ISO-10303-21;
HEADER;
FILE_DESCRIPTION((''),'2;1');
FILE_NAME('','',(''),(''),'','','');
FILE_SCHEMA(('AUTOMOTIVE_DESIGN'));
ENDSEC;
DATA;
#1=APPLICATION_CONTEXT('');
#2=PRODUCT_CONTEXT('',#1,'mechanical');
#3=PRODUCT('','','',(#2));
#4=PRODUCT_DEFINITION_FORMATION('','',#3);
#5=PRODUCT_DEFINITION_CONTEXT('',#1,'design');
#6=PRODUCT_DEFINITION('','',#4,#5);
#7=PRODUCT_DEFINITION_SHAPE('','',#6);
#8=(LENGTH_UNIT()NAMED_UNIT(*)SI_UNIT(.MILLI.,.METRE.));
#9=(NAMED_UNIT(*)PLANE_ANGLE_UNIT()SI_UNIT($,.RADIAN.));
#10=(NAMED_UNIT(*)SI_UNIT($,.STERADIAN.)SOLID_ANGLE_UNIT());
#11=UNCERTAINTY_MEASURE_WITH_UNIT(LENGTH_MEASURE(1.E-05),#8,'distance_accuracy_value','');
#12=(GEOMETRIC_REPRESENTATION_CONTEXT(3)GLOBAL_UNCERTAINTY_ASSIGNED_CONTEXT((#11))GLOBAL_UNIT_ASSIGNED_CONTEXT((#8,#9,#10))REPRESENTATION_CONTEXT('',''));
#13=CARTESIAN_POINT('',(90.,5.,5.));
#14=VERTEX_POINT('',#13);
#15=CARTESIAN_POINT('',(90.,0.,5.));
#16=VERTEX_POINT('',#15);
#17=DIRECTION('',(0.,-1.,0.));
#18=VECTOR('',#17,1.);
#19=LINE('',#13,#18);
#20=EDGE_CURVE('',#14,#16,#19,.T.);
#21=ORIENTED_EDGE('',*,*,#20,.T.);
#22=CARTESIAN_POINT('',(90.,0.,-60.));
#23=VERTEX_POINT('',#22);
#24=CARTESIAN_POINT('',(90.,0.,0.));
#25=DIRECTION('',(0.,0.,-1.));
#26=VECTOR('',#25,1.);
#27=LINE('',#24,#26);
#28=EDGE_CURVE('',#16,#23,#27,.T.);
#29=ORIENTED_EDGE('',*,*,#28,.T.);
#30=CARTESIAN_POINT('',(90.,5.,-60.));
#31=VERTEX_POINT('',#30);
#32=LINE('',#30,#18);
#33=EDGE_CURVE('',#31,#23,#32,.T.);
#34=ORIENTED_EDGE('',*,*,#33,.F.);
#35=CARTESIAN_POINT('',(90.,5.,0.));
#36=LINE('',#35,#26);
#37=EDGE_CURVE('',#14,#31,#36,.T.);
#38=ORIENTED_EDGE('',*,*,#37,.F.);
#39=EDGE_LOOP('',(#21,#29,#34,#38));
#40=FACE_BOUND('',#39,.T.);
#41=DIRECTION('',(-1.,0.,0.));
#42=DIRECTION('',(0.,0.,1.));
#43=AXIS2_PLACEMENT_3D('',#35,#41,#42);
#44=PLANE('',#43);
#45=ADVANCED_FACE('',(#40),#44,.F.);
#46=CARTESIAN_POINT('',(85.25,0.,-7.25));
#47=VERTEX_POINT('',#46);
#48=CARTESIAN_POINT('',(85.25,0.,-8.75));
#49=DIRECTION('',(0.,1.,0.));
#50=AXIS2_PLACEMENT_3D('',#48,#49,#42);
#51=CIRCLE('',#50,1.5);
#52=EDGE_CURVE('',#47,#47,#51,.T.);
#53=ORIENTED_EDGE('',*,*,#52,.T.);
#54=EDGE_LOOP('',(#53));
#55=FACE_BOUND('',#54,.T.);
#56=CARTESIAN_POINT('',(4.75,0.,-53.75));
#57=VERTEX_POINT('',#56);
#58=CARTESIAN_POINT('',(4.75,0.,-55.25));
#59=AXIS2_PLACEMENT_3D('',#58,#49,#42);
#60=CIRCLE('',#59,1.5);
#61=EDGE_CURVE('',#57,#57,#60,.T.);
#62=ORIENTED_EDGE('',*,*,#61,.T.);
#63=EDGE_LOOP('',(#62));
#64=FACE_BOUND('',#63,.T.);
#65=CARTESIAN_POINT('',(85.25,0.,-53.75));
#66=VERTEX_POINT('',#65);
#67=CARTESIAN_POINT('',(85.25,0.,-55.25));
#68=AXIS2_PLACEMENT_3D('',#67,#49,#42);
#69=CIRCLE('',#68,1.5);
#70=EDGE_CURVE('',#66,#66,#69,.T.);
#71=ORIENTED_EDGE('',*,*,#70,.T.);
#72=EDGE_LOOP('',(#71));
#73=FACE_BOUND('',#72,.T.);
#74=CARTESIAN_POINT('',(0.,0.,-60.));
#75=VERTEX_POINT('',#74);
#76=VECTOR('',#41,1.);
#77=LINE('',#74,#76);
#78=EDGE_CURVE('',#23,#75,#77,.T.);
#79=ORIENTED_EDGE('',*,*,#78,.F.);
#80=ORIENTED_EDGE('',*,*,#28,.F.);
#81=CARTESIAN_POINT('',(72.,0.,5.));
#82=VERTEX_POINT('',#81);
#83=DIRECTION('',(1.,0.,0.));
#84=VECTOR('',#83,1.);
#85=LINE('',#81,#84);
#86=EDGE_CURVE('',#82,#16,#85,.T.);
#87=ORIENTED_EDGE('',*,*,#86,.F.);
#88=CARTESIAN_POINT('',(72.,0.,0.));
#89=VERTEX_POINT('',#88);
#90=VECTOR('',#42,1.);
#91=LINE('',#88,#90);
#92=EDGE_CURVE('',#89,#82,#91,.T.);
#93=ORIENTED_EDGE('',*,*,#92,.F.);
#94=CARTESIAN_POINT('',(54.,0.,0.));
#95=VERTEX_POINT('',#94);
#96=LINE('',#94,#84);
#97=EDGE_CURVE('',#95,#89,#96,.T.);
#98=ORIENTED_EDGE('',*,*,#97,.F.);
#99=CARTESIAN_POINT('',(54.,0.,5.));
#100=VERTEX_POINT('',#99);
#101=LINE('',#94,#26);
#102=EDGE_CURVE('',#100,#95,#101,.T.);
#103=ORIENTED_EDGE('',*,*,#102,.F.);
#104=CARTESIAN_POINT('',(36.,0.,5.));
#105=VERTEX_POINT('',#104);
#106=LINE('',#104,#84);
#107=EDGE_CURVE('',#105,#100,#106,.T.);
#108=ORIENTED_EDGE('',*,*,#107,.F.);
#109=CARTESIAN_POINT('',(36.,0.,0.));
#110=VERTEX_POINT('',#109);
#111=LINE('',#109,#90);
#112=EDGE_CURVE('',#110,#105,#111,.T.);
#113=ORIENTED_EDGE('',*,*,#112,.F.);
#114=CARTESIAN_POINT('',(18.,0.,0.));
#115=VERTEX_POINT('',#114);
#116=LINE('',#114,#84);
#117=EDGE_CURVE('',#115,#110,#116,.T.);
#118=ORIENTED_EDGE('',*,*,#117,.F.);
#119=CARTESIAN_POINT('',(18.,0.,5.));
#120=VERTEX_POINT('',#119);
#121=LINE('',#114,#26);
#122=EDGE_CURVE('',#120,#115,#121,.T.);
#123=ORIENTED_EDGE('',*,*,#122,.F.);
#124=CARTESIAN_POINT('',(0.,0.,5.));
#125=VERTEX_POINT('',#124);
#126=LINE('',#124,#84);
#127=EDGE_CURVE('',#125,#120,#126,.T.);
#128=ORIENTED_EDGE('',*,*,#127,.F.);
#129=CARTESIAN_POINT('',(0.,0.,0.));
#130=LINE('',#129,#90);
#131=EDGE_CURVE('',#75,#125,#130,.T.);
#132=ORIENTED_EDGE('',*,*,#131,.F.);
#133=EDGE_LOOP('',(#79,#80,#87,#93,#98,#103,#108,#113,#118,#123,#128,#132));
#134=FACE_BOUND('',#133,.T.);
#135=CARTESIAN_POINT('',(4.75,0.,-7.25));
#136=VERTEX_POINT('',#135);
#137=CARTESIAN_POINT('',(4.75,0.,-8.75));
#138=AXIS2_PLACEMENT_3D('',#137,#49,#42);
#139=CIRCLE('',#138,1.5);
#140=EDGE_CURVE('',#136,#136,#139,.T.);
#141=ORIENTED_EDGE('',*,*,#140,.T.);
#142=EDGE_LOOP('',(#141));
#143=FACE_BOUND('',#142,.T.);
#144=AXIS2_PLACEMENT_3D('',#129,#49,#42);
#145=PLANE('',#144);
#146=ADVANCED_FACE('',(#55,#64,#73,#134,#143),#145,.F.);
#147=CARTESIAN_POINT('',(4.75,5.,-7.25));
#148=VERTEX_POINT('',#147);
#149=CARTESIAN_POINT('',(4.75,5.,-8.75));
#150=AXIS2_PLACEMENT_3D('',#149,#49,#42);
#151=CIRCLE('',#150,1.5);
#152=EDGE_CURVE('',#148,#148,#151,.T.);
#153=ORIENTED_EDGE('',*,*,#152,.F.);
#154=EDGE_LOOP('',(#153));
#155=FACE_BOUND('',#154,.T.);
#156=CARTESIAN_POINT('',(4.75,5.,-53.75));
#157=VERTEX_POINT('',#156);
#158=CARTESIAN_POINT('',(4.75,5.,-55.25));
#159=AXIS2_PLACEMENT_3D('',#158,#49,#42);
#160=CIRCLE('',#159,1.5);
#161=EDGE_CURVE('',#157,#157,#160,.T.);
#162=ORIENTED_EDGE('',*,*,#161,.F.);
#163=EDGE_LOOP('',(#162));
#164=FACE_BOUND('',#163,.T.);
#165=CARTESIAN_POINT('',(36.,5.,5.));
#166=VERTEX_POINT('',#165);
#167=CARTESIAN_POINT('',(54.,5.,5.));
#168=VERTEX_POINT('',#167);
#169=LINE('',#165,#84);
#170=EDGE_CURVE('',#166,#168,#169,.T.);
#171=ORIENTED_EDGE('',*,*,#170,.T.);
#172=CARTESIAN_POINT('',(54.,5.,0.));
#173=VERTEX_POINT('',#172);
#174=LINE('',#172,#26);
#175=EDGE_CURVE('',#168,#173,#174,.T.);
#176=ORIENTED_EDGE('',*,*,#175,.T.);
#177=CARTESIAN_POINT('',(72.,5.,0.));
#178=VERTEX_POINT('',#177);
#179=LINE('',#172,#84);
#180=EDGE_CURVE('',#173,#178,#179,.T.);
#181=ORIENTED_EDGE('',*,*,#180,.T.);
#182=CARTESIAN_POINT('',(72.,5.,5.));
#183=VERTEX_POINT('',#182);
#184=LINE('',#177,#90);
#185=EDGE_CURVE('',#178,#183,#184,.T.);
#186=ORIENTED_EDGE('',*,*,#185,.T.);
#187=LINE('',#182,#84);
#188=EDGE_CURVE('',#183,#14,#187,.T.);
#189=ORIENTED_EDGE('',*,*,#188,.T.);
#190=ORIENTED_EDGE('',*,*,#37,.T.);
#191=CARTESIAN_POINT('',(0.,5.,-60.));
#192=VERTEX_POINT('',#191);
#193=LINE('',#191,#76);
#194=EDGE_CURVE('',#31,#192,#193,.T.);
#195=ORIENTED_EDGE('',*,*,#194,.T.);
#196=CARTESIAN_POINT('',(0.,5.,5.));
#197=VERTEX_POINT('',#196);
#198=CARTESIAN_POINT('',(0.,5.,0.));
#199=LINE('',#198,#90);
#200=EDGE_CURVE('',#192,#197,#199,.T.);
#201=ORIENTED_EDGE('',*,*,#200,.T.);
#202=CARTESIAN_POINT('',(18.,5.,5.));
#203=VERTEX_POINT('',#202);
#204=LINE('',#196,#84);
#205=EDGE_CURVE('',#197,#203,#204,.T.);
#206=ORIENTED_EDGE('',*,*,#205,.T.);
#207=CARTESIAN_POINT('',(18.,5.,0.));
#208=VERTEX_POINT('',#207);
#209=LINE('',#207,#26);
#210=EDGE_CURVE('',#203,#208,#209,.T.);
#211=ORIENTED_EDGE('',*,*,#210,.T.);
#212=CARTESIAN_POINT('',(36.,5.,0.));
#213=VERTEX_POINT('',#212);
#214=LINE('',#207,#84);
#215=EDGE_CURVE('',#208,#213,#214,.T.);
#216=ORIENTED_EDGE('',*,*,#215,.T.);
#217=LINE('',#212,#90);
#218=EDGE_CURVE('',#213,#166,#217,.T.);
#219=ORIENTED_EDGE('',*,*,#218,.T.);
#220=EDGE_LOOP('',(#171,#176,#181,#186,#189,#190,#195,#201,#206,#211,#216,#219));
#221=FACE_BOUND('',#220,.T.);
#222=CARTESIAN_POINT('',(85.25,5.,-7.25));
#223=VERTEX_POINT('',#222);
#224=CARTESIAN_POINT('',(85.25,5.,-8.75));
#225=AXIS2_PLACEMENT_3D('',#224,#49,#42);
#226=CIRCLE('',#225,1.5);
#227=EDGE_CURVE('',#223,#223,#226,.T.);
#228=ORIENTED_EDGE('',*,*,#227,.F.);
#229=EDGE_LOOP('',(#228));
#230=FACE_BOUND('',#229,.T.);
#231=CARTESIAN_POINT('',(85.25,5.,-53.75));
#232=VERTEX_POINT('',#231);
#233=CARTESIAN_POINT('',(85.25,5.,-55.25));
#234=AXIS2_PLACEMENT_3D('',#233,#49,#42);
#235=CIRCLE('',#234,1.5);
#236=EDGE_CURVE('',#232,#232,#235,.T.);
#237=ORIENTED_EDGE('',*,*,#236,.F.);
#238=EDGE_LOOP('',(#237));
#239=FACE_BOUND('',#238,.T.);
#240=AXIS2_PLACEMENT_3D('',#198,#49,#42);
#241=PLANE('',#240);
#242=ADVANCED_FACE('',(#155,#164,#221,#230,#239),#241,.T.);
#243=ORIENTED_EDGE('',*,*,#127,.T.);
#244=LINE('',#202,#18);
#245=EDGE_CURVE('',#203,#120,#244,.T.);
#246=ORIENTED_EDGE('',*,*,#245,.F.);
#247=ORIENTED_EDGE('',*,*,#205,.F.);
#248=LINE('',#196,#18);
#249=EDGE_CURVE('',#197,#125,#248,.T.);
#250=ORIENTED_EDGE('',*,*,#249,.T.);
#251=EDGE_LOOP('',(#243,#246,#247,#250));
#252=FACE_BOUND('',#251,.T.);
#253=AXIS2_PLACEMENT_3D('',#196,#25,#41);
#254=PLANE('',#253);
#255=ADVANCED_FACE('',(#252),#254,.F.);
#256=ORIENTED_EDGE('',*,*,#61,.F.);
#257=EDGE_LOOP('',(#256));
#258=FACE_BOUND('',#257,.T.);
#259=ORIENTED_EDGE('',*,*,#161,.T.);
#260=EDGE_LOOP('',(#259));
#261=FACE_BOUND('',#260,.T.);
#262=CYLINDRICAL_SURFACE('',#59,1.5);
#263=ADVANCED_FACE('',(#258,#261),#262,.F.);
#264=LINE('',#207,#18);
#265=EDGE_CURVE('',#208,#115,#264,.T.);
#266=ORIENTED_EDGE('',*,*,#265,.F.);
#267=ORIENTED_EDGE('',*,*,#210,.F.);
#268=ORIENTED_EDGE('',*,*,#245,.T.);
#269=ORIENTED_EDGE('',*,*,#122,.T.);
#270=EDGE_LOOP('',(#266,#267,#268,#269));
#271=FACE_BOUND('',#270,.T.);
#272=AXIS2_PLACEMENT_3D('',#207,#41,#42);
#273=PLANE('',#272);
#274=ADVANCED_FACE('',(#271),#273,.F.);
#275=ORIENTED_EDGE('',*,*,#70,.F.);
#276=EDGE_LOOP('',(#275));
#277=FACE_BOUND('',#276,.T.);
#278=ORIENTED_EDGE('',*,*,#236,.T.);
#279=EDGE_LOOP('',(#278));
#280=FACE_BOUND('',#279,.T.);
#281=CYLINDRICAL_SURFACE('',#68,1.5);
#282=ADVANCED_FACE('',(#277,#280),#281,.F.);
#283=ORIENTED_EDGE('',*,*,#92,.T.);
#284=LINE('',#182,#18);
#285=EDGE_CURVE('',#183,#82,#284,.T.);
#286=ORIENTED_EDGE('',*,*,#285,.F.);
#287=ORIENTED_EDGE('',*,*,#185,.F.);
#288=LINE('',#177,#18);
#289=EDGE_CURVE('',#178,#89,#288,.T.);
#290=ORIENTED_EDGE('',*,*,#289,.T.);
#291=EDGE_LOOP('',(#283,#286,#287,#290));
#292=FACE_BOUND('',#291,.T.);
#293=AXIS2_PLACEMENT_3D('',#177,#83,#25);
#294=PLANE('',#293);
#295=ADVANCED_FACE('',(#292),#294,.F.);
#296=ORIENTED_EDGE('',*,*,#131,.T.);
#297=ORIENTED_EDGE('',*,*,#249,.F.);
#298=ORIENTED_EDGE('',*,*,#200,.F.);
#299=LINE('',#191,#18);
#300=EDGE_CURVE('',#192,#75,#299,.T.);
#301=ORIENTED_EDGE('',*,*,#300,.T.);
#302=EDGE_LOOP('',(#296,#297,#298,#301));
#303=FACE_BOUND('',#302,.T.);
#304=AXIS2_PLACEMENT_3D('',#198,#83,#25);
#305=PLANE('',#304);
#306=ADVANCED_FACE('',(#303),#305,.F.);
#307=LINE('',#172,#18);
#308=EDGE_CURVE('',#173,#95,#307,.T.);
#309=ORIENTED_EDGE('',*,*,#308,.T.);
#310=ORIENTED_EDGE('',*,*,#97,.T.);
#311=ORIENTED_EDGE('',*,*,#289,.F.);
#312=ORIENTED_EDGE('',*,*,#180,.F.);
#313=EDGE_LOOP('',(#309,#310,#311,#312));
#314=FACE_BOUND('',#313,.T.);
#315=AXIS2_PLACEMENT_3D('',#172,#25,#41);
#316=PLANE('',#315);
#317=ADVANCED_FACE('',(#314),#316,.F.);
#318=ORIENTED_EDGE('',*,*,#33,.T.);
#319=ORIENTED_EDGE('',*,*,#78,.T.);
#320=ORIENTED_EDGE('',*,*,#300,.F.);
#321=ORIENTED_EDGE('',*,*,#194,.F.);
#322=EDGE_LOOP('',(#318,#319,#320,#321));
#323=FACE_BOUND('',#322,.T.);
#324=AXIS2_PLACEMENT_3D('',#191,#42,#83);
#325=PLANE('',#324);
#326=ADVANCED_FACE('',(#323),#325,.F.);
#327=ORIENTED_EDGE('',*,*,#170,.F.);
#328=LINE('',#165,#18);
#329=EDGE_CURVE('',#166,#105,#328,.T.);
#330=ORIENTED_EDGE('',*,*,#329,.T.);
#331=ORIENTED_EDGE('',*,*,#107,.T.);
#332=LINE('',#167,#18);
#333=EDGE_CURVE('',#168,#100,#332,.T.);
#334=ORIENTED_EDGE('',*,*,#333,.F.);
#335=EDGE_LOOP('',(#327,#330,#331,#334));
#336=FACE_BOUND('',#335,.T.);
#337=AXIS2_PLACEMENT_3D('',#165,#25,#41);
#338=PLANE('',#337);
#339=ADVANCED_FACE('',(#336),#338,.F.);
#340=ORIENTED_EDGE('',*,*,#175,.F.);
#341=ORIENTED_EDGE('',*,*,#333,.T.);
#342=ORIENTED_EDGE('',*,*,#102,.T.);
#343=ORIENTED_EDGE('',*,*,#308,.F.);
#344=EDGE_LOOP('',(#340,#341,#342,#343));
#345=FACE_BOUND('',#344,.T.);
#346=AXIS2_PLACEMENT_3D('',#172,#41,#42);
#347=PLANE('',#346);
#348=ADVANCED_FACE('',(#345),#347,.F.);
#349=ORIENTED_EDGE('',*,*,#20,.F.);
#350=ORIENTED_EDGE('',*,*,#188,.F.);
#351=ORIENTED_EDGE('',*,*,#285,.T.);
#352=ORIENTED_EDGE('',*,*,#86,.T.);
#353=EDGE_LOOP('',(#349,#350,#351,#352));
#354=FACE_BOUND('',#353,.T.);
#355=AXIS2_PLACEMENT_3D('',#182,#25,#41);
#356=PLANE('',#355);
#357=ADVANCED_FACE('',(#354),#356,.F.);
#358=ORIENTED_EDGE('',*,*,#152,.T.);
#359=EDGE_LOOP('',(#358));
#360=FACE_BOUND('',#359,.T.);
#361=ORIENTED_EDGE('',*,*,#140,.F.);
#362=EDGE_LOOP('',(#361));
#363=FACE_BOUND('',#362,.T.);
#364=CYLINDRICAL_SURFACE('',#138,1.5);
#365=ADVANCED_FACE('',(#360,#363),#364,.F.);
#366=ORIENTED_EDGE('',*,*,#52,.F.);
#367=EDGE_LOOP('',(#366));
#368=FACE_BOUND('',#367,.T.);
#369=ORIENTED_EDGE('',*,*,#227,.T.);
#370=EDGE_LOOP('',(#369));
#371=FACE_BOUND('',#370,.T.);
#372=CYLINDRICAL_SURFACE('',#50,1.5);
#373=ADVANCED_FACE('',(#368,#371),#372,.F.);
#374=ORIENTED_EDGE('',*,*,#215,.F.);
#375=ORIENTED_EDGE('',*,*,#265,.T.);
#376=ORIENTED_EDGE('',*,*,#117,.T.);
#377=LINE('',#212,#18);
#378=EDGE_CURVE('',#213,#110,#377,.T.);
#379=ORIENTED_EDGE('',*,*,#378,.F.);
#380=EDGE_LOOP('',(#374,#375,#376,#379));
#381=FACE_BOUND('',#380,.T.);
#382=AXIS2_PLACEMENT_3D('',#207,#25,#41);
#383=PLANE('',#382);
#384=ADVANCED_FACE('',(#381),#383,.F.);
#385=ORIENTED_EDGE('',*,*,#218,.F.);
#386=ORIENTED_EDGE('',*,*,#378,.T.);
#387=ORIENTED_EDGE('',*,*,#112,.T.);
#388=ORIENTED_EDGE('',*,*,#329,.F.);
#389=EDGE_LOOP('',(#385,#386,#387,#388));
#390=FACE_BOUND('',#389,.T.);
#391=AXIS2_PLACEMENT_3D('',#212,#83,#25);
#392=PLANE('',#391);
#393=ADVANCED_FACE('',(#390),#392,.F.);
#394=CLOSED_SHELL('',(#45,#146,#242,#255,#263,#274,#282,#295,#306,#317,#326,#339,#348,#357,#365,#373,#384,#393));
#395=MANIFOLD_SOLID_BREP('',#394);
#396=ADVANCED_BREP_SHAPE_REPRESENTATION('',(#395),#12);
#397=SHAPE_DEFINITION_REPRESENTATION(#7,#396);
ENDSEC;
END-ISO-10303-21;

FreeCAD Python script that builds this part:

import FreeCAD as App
import Part
import Sketcher
from FreeCAD import Vector


def add_polygon(sketch, points):
    """Adds a closed chain of lines whose ends are joined by coincident constraints."""
    first, n = sketch.GeometryCount, len(points)
    for a, b in zip(points, points[1:] + points[:1]):
        sketch.addGeometry(Part.LineSegment(App.Vector(*a, 0), App.Vector(*b, 0)), False)
    for i in range(n):
        sketch.addConstraint(Sketcher.Constraint("Coincident", first + i, 2, first + (i + 1) % n, 1))

doc = App.newDocument("Part")
params = doc.addObject("Spreadsheet::Sheet", "Params")
for row, (alias, value) in enumerate([
    ("sketch1_width", "18 mm"),
    ("sketch1_height", "5 mm"),
    ("sketch1_height2", "65 mm"),
    ("pad1_length", "5 mm"),
    ("sketch2_diameter", "3 mm"),
    ("pocket1_length", "5 mm"),
], start=1):
    params.set(f"A{row}", alias)
    params.set(f"B{row}", "=" + value)
    params.setAlias(f"B{row}", alias)

body = doc.addObject("PartDesign::Body", "Body")

sketch1 = body.newObject("Sketcher::SketchObject", "Sketch")
sketch1.AttachmentSupport = (doc.getObject("XZ_Plane"), [""])
sketch1.MapMode = "FlatFace"
add_polygon(sketch1, [(54, 0), (72, 0), (72, 5), (90, 5), (90, -60), (0, -60), (0, 5), (18, 5), (18, 0), (36, 0), (36, 5), (54, 5)])
sketch1.addConstraint([
    Sketcher.Constraint("Horizontal", 0),
    Sketcher.Constraint("Vertical", 1),
    Sketcher.Constraint("Horizontal", 2),
    Sketcher.Constraint("Vertical", 3),
    Sketcher.Constraint("Horizontal", 4),
    Sketcher.Constraint("Vertical", 5),
    Sketcher.Constraint("Horizontal", 6),
    Sketcher.Constraint("Vertical", 7),
    Sketcher.Constraint("Horizontal", 8),
    Sketcher.Constraint("Vertical", 9),
    Sketcher.Constraint("Horizontal", 10),
    Sketcher.Constraint("Vertical", 11),
    Sketcher.Constraint("PointOnObject", 0, 2, -1),
    Sketcher.Constraint("PointOnObject", 4, 2, -2),
    Sketcher.Constraint("PointOnObject", 7, 2, -1),
    Sketcher.Constraint("Horizontal", 2, 2, 5, 2),
    Sketcher.Constraint("Horizontal", 6, 2, 9, 2),
    Sketcher.Constraint("Equal", 0, 2),
    Sketcher.Constraint("Equal", 2, 6),
    Sketcher.Constraint("Equal", 6, 8),
    Sketcher.Constraint("Equal", 8, 10),
    Sketcher.Constraint("DistanceX", 0, 1, 0, 2, 18.0),
    Sketcher.Constraint("DistanceY", 1, 1, 1, 2, 5.0),
    Sketcher.Constraint("DistanceY", 3, 2, 3, 1, 65.0),
])
sketch1.setExpression("Constraints[33]", "Params.sketch1_width")
sketch1.setExpression("Constraints[34]", "Params.sketch1_height")
sketch1.setExpression("Constraints[35]", "Params.sketch1_height2")
pad1 = body.newObject("PartDesign::Pad", "Pad")
pad1.Profile = sketch1
pad1.setExpression("Length", "Params.pad1_length")
pad1.Reversed = True

sketch2 = body.newObject("Sketcher::SketchObject", "Sketch001")
sketch2.AttachmentSupport = (doc.getObject("XZ_Plane"), [""])
sketch2.MapMode = "FlatFace"
sketch2.AttachmentOffset = App.Placement(Vector(0, 0, -5), App.Rotation())
sketch2.addGeometry([
    Part.Circle(Vector(4.8, -55.2, 0), Vector(0, 0, 1), 1.5),
    Part.Circle(Vector(85.2, -55.2, 0), Vector(0, 0, 1), 1.5),
    Part.Circle(Vector(85.2, -8.8, 0), Vector(0, 0, 1), 1.5),
    Part.Circle(Vector(4.8, -8.8, 0), Vector(0, 0, 1), 1.5),
], False)
sketch2.addConstraint([
    Sketcher.Constraint("Equal", 0, 1),
    Sketcher.Constraint("Equal", 1, 2),
    Sketcher.Constraint("Equal", 2, 3),
    Sketcher.Constraint("Horizontal", 0, 3, 1, 3),
    Sketcher.Constraint("Horizontal", 2, 3, 3, 3),
    Sketcher.Constraint("Vertical", 1, 3, 2, 3),
    Sketcher.Constraint("Vertical", 0, 3, 3, 3),
    Sketcher.Constraint("Diameter", 0, 3.0),
    Sketcher.Constraint("DistanceX", 0, 3, 1, 3, 80.5),
    Sketcher.Constraint("DistanceY", 1, 3, 2, 3, 46.5),
    Sketcher.Constraint("DistanceX", -1, 1, 0, 3, 4.75),
    Sketcher.Constraint("DistanceY", 0, 3, -1, 1, 55.25),
])
sketch2.setExpression("Constraints[7]", "Params.sketch2_diameter")
pocket1 = body.newObject("PartDesign::Pocket", "Pocket")
pocket1.Profile = sketch2
pocket1.setExpression("Length", "Params.pocket1_length")
pocket1.Reversed = True

doc.recompute()
